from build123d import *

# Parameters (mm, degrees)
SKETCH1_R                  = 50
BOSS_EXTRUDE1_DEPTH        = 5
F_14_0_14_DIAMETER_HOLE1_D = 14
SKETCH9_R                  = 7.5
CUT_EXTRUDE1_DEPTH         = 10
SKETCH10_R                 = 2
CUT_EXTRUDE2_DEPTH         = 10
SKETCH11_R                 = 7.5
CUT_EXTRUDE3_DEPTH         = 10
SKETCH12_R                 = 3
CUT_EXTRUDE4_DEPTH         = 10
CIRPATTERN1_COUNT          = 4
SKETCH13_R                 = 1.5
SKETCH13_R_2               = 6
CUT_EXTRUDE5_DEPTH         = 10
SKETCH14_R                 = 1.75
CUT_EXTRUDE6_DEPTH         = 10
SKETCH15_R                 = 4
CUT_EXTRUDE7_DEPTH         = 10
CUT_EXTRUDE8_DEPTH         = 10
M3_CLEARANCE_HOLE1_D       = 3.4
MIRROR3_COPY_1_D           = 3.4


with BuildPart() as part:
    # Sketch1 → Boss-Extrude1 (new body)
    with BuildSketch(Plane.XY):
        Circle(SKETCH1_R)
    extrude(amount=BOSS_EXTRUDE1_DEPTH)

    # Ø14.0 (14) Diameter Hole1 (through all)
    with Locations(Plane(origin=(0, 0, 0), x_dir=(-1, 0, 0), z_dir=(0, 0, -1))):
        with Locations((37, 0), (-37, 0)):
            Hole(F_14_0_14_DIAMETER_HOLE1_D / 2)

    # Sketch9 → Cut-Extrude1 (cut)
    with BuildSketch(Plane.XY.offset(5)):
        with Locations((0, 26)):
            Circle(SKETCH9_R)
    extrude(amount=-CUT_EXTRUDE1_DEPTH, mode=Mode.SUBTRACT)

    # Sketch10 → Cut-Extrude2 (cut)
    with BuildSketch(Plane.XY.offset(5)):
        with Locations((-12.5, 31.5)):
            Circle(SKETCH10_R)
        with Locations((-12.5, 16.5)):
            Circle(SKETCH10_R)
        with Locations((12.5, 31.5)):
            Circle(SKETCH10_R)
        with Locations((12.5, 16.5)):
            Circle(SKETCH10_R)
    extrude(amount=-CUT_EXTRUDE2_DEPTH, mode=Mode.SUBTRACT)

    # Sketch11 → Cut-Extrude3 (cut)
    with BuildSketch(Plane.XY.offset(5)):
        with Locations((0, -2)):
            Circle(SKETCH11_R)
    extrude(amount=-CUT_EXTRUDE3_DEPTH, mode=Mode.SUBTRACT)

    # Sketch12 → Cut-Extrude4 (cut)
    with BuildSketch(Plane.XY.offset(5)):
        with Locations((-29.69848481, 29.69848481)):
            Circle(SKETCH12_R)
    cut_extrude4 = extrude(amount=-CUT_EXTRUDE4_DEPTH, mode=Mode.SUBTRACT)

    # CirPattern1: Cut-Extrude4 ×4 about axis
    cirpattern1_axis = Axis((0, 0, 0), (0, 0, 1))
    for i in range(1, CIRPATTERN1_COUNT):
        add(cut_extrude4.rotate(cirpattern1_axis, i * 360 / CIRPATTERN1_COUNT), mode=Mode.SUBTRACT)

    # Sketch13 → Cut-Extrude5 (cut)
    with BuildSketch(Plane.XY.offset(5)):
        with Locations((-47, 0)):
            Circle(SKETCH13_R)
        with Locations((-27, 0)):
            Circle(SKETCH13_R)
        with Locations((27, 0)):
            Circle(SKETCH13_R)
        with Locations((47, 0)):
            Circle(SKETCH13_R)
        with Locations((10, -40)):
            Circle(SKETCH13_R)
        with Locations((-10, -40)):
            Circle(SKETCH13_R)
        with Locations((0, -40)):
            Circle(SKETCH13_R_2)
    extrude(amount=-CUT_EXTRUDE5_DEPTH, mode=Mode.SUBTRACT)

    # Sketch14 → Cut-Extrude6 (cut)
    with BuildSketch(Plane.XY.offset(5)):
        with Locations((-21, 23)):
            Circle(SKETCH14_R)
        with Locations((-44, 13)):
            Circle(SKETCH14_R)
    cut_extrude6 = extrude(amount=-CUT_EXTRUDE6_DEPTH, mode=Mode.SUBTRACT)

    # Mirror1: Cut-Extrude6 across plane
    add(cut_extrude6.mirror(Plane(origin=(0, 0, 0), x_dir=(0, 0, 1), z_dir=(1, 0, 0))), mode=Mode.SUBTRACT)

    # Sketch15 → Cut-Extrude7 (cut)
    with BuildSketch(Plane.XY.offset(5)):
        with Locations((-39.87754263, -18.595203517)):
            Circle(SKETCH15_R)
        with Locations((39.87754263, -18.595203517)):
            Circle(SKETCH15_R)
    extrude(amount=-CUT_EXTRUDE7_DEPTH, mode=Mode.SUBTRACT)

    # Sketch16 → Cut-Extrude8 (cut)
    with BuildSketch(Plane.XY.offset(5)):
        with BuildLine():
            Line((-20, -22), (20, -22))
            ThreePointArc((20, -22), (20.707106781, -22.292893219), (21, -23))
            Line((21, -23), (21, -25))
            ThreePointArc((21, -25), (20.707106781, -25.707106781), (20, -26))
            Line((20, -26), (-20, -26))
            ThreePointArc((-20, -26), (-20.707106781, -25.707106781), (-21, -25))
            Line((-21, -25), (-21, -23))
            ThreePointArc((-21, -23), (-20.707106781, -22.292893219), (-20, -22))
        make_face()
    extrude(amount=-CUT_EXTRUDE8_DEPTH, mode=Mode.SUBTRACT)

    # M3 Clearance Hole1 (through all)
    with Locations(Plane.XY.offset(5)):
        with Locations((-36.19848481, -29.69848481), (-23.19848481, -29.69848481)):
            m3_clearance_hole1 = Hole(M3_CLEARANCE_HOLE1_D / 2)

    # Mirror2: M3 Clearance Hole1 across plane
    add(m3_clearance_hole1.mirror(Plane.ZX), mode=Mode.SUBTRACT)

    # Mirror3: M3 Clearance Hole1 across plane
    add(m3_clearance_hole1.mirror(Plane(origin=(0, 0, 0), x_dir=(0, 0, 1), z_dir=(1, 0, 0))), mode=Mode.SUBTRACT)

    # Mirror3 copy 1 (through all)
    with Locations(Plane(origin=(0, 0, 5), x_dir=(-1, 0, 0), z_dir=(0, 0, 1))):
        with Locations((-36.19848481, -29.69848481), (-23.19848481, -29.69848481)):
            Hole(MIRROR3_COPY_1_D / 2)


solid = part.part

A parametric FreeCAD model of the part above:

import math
import FreeCAD as App
import Part
import Sketcher
from FreeCAD import Vector
Q = App.Units.Quantity

doc = App.newDocument("Part")
params = doc.addObject("Spreadsheet::Sheet", "Params")
for row, (alias, value) in enumerate([
    ("sketch1_diameter", "100 mm"),
    ("pad1_length", "5 mm"),
    ("sketch2_diameter", "14 mm"),
    ("hole_diameter", "14 mm"),
    ("sketch3_diameter", "15 mm"),
    ("pocket1_length", "10 mm"),
    ("sketch4_diameter", "4 mm"),
    ("pocket2_length", "10 mm"),
    ("sketch5_diameter", "15 mm"),
    ("pocket3_length", "10 mm"),
    ("sketch6_diameter", "6 mm"),
    ("pocket4_length", "10 mm"),
    ("sketch7_diameter", "3 mm"),
    ("sketch7_diameter2", "12 mm"),
    ("pocket5_length", "10 mm"),
    ("sketch8_diameter", "3.5 mm"),
    ("pocket6_length", "10 mm"),
    ("sketch9_diameter", "8 mm"),
    ("pocket7_length", "10 mm"),
    ("sketch10_radius", "1 mm"),
    ("sketch10_width", "40 mm"),
    ("sketch10_height", "2 mm"),
    ("pocket8_length", "10 mm"),
    ("sketch11_diameter", "3.4 mm"),
    ("hole2_diameter", "3.4 mm"),
    ("sketch12_diameter", "3.4 mm"),
    ("hole3_diameter", "3.4 mm"),
], start=1):
    params.set(f"A{row}", alias)
    params.set(f"B{row}", "=" + value)
    params.setAlias(f"B{row}", alias)

body = doc.addObject("PartDesign::Body", "Body")

# Sketch on XY plane
sketch1 = doc.addObject("Sketcher::SketchObject", "Sketch")
body.addObject(sketch1)
sketch1.AttachmentSupport = (doc.XY_Plane, [""])
sketch1.MapMode = "FlatFace"
sketch1.addGeometry(Part.Circle(Vector(0, 0, 0), Vector(0, 0, 1), 50), False)
sketch1.addConstraint([
    Sketcher.Constraint("Coincident", 0, 3, -1, 1),
    Sketcher.Constraint("Diameter", 0, Q("100 mm")),
])
sketch1.setExpression("Constraints[1]", "Params.sketch1_diameter")
pad1 = doc.addObject("PartDesign::Pad", "Pad")
body.addObject(pad1)
pad1.Profile = sketch1
pad1.setExpression("Length", "Params.pad1_length")

# Sketch on XY plane
sketch2 = doc.addObject("Sketcher::SketchObject", "Sketch001")
body.addObject(sketch2)
sketch2.AttachmentSupport = (doc.XY_Plane, [""])
sketch2.MapMode = "FlatFace"
sketch2.addGeometry([
    Part.Circle(Vector(-37, 0, 0), Vector(0, 0, 1), 7),
    Part.Circle(Vector(37, 0, 0), Vector(0, 0, 1), 7),
], False)
sketch2.addConstraint([
    Sketcher.Constraint("Equal", 0, 1),
    Sketcher.Constraint("Symmetric", 0, 3, 1, 3, -1, 1),
    Sketcher.Constraint("PointOnObject", 0, 3, -1),
    Sketcher.Constraint("Diameter", 0, Q("14 mm")),
    Sketcher.Constraint("DistanceX", 0, 3, -1, 1, Q("37 mm")),
])
sketch2.setExpression("Constraints[3]", "Params.sketch2_diameter")
doc.recompute()
hole = doc.addObject("PartDesign::Hole", "Hole")
body.addObject(hole)
hole.Profile = sketch2
hole.ThreadType = "None"
hole.setExpression("Diameter", "Params.hole_diameter")
hole.DepthType = "ThroughAll"
hole.Reversed = True

# Sketch on XY plane
sketch3 = doc.addObject("Sketcher::SketchObject", "Sketch002")
body.addObject(sketch3)
sketch3.AttachmentSupport = (doc.XY_Plane, [""])
sketch3.MapMode = "FlatFace"
sketch3.AttachmentOffset = App.Placement(Vector(0, 0, 5), App.Rotation())
sketch3.addGeometry(Part.Circle(Vector(0, 26, 0), Vector(0, 0, 1), 8), False)
sketch3.addConstraint([
    Sketcher.Constraint("PointOnObject", 0, 3, -2),
    Sketcher.Constraint("Diameter", 0, Q("15 mm")),
    Sketcher.Constraint("DistanceY", -1, 1, 0, 3, Q("26 mm")),
])
sketch3.setExpression("Constraints[1]", "Params.sketch3_diameter")
pocket1 = doc.addObject("PartDesign::Pocket", "Pocket")
body.addObject(pocket1)
pocket1.Profile = sketch3
pocket1.setExpression("Length", "Params.pocket1_length")

# Sketch on XY plane
sketch4 = doc.addObject("Sketcher::SketchObject", "Sketch003")
body.addObject(sketch4)
sketch4.AttachmentSupport = (doc.XY_Plane, [""])
sketch4.MapMode = "FlatFace"
sketch4.AttachmentOffset = App.Placement(Vector(0, 0, 5), App.Rotation())
sketch4.addGeometry([
    Part.Circle(Vector(-12.5, 31.5, 0), Vector(0, 0, 1), 2),
    Part.Circle(Vector(-12.5, 16.5, 0), Vector(0, 0, 1), 2),
    Part.Circle(Vector(12.5, 31.5, 0), Vector(0, 0, 1), 2),
    Part.Circle(Vector(12.5, 16.5, 0), Vector(0, 0, 1), 2),
], False)
sketch4.addConstraint([
    Sketcher.Constraint("Equal", 0, 1),
    Sketcher.Constraint("Equal", 1, 2),
    Sketcher.Constraint("Equal", 2, 3),
    Sketcher.Constraint("Symmetric", 0, 3, 2, 3, -2),
    Sketcher.Constraint("Symmetric", 1, 3, 3, 3, -2),
    Sketcher.Constraint("Vertical", 0, 3, 1, 3),
    Sketcher.Constraint("Diameter", 0, Q("4 mm")),
    Sketcher.Constraint("DistanceY", 1, 3, 0, 3, Q("15 mm")),
    Sketcher.Constraint("DistanceX", 0, 3, 2, 3, Q("25 mm")),
    Sketcher.Constraint("DistanceY", -1, 1, 0, 3, Q("31.5 mm")),
])
sketch4.setExpression("Constraints[6]", "Params.sketch4_diameter")
pocket2 = doc.addObject("PartDesign::Pocket", "Pocket001")
body.addObject(pocket2)
pocket2.Profile = sketch4
pocket2.setExpression("Length", "Params.pocket2_length")

# Sketch on XY plane
sketch5 = doc.addObject("Sketcher::SketchObject", "Sketch004")
body.addObject(sketch5)
sketch5.AttachmentSupport = (doc.XY_Plane, [""])
sketch5.MapMode = "FlatFace"
sketch5.AttachmentOffset = App.Placement(Vector(0, 0, 5), App.Rotation())
sketch5.addGeometry(Part.Circle(Vector(0, -2, 0), Vector(0, 0, 1), 8), False)
sketch5.addConstraint([
    Sketcher.Constraint("PointOnObject", 0, 3, -2),
    Sketcher.Constraint("Diameter", 0, Q("15 mm")),
    Sketcher.Constraint("DistanceY", 0, 3, -1, 1, Q("2 mm")),
])
sketch5.setExpression("Constraints[1]", "Params.sketch5_diameter")
pocket3 = doc.addObject("PartDesign::Pocket", "Pocket002")
body.addObject(pocket3)
pocket3.Profile = sketch5
pocket3.setExpression("Length", "Params.pocket3_length")

# Sketch on XY plane
sketch6 = doc.addObject("Sketcher::SketchObject", "Sketch005")
body.addObject(sketch6)
sketch6.AttachmentSupport = (doc.XY_Plane, [""])
sketch6.MapMode = "FlatFace"
sketch6.AttachmentOffset = App.Placement(Vector(0, 0, 5), App.Rotation())
sketch6.addGeometry(Part.Circle(Vector(-29.7, 29.7, 0), Vector(0, 0, 1), 3), False)
sketch6.addConstraint([
    Sketcher.Constraint("Diameter", 0, Q("6 mm")),
    Sketcher.Constraint("DistanceX", 0, 3, -1, 1, Q("29.698485 mm")),
    Sketcher.Constraint("DistanceY", -1, 1, 0, 3, Q("29.698485 mm")),
])
sketch6.setExpression("Constraints[0]", "Params.sketch6_diameter")
pocket4 = doc.addObject("PartDesign::Pocket", "Pocket003")
body.addObject(pocket4)
pocket4.Profile = sketch6
pocket4.setExpression("Length", "Params.pocket4_length")
doc.recompute()

polarpattern = doc.addObject("PartDesign::PolarPattern", "PolarPattern")
body.addObject(polarpattern)
polarpattern.Originals = [pocket4]
polarpattern.Axis = (doc.Z_Axis, [""])
polarpattern.Angle = 360
polarpattern.Occurrences = 4
body.Tip = polarpattern

# Sketch on XY plane
sketch7 = doc.addObject("Sketcher::SketchObject", "Sketch006")
body.addObject(sketch7)
sketch7.AttachmentSupport = (doc.XY_Plane, [""])
sketch7.MapMode = "FlatFace"
sketch7.AttachmentOffset = App.Placement(Vector(0, 0, 5), App.Rotation())
sketch7.addGeometry([
    Part.Circle(Vector(-47, 0, 0), Vector(0, 0, 1), 1.5),  # 0
    Part.Circle(Vector(-27, 0, 0), Vector(0, 0, 1), 1.5),  # 1
    Part.Circle(Vector(27, 0, 0), Vector(0, 0, 1), 1.5),  # 2
    Part.Circle(Vector(47, 0, 0), Vector(0, 0, 1), 1.5),  # 3
    Part.Circle(Vector(10, -40, 0), Vector(0, 0, 1), 1.5),  # 4
    Part.Circle(Vector(-10, -40, 0), Vector(0, 0, 1), 1.5),  # 5
    Part.Circle(Vector(0, -40, 0), Vector(0, 0, 1), 6),  # 6
], False)
sketch7.addConstraint([
    Sketcher.Constraint("Equal", 0, 1),
    Sketcher.Constraint("Equal", 1, 2),
    Sketcher.Constraint("Equal", 2, 3),
    Sketcher.Constraint("Equal", 3, 4),
    Sketcher.Constraint("Equal", 4, 5),
    Sketcher.Constraint("Symmetric", 1, 3, 2, 3, -1, 1),
    Sketcher.Constraint("Symmetric", 0, 3, 3, 3, -1, 1),
    Sketcher.Constraint("Symmetric", 4, 3, 5, 3, -2),
    Sketcher.Constraint("PointOnObject", 0, 3, -1),
    Sketcher.Constraint("PointOnObject", 1, 3, -1),
    Sketcher.Constraint("PointOnObject", 6, 3, -2),
    Sketcher.Constraint("Horizontal", 5, 3, 6, 3),
    Sketcher.Constraint("Diameter", 0, Q("3 mm")),
    Sketcher.Constraint("Diameter", 6, Q("12 mm")),
    Sketcher.Constraint("DistanceX", 0, 3, -1, 1, Q("47 mm")),
    Sketcher.Constraint("DistanceX", 1, 3, -1, 1, Q("27 mm")),
    Sketcher.Constraint("DistanceX", -1, 1, 4, 3, Q("10 mm")),
    Sketcher.Constraint("DistanceY", 4, 3, -1, 1, Q("40 mm")),
])
sketch7.setExpression("Constraints[12]", "Params.sketch7_diameter")
sketch7.setExpression("Constraints[13]", "Params.sketch7_diameter2")
pocket5 = doc.addObject("PartDesign::Pocket", "Pocket004")
body.addObject(pocket5)
pocket5.Profile = sketch7
pocket5.setExpression("Length", "Params.pocket5_length")

# Sketch on XY plane
sketch8 = doc.addObject("Sketcher::SketchObject", "Sketch007")
body.addObject(sketch8)
sketch8.AttachmentSupport = (doc.XY_Plane, [""])
sketch8.MapMode = "FlatFace"
sketch8.AttachmentOffset = App.Placement(Vector(0, 0, 5), App.Rotation())
sketch8.addGeometry([
    Part.Circle(Vector(-21, 23, 0), Vector(0, 0, 1), 1.8),
    Part.Circle(Vector(-44, 13, 0), Vector(0, 0, 1), 1.8),
], False)
sketch8.addConstraint([
    Sketcher.Constraint("Equal", 0, 1),
    Sketcher.Constraint("Diameter", 0, Q("3.5 mm")),
    Sketcher.Constraint("DistanceX", 0, 3, -1, 1, Q("21 mm")),
    Sketcher.Constraint("DistanceY", -1, 1, 0, 3, Q("23 mm")),
    Sketcher.Constraint("DistanceX", 1, 3, -1, 1, Q("44 mm")),
    Sketcher.Constraint("DistanceY", -1, 1, 1, 3, Q("13 mm")),
])
sketch8.setExpression("Constraints[1]", "Params.sketch8_diameter")
pocket6 = doc.addObject("PartDesign::Pocket", "Pocket005")
body.addObject(pocket6)
pocket6.Profile = sketch8
pocket6.setExpression("Length", "Params.pocket6_length")
doc.recompute()

mirrored = doc.addObject("PartDesign::Mirrored", "Mirrored")
body.addObject(mirrored)
mirrored.Originals = [pocket6]
mirrored.MirrorPlane = (doc.YZ_Plane, [""])
body.Tip = mirrored

# Sketch on XY plane
sketch9 = doc.addObject("Sketcher::SketchObject", "Sketch008")
body.addObject(sketch9)
sketch9.AttachmentSupport = (doc.XY_Plane, [""])
sketch9.MapMode = "FlatFace"
sketch9.AttachmentOffset = App.Placement(Vector(0, 0, 5), App.Rotation())
sketch9.addGeometry([
    Part.Circle(Vector(-39.9, -18.6, 0), Vector(0, 0, 1), 4),
    Part.Circle(Vector(39.9, -18.6, 0), Vector(0, 0, 1), 4),
], False)
sketch9.addConstraint([
    Sketcher.Constraint("Equal", 0, 1),
    Sketcher.Constraint("Symmetric", 0, 3, 1, 3, -2),
    Sketcher.Constraint("Diameter", 0, Q("8 mm")),
    Sketcher.Constraint("DistanceX", 0, 3, -1, 1, Q("39.877543 mm")),
    Sketcher.Constraint("DistanceY", 0, 3, -1, 1, Q("18.595204 mm")),
])
sketch9.setExpression("Constraints[2]", "Params.sketch9_diameter")
pocket7 = doc.addObject("PartDesign::Pocket", "Pocket006")
body.addObject(pocket7)
pocket7.Profile = sketch9
pocket7.setExpression("Length", "Params.pocket7_length")

# Sketch on XY plane
sketch10 = doc.addObject("Sketcher::SketchObject", "Sketch009")
body.addObject(sketch10)
sketch10.AttachmentSupport = (doc.XY_Plane, [""])
sketch10.MapMode = "FlatFace"
sketch10.AttachmentOffset = App.Placement(Vector(0, 0, 5), App.Rotation())
sketch10.addGeometry([
    Part.LineSegment(Vector(20, -22, 0), Vector(-20, -22, 0)),  # 0
    Part.ArcOfCircle(Part.Circle(Vector(-20, -23, 0), Vector(0, 0, 1), 1), math.radians(90), math.radians(180)),  # 1
    Part.LineSegment(Vector(-21, -23, 0), Vector(-21, -25, 0)),  # 2
    Part.ArcOfCircle(Part.Circle(Vector(-20, -25, 0), Vector(0, 0, 1), 1), math.radians(-180), math.radians(-90)),  # 3
    Part.LineSegment(Vector(-20, -26, 0), Vector(20, -26, 0)),  # 4
    Part.ArcOfCircle(Part.Circle(Vector(20, -25, 0), Vector(0, 0, 1), 1), math.radians(-90), math.radians(0)),  # 5
    Part.LineSegment(Vector(21, -25, 0), Vector(21, -23, 0)),  # 6
    Part.ArcOfCircle(Part.Circle(Vector(20, -23, 0), Vector(0, 0, 1), 1), math.radians(0), math.radians(90)),  # 7
], False)
sketch10.addConstraint([
    Sketcher.Constraint("Tangent", 0, 2, 1, 1),
    Sketcher.Constraint("Tangent", 1, 2, 2, 1),
    Sketcher.Constraint("Tangent", 2, 2, 3, 1),
    Sketcher.Constraint("Tangent", 3, 2, 4, 1),
    Sketcher.Constraint("Tangent", 4, 2, 5, 1),
    Sketcher.Constraint("Tangent", 5, 2, 6, 1),
    Sketcher.Constraint("Tangent", 6, 2, 7, 1),
    Sketcher.Constraint("Tangent", 7, 2, 0, 1),
    Sketcher.Constraint("Horizontal", 0),
    Sketcher.Constraint("Vertical", 2),
    Sketcher.Constraint("Horizontal", 4),
    Sketcher.Constraint("Vertical", 6),
    Sketcher.Constraint("Equal", 1, 3),
    Sketcher.Constraint("Equal", 3, 5),
    Sketcher.Constraint("Equal", 5, 7),
    Sketcher.Constraint("Radius", 1, Q("1 mm")),
    Sketcher.Constraint("DistanceX", 0, 2, 0, 1, Q("40 mm")),
    Sketcher.Constraint("DistanceY", 2, 2, 2, 1, Q("2 mm")),
    Sketcher.Constraint("DistanceX", 1, 3, -1, 1, Q("20 mm")),
    Sketcher.Constraint("DistanceY", 1, 3, -1, 1, Q("23 mm")),
])
sketch10.setExpression("Constraints[15]", "Params.sketch10_radius")
sketch10.setExpression("Constraints[16]", "Params.sketch10_width")
sketch10.setExpression("Constraints[17]", "Params.sketch10_height")
pocket8 = doc.addObject("PartDesign::Pocket", "Pocket007")
body.addObject(pocket8)
pocket8.Profile = sketch10
pocket8.setExpression("Length", "Params.pocket8_length")

# Sketch on XY plane
sketch11 = doc.addObject("Sketcher::SketchObject", "Sketch010")
body.addObject(sketch11)
sketch11.AttachmentSupport = (doc.XY_Plane, [""])
sketch11.MapMode = "FlatFace"
sketch11.AttachmentOffset = App.Placement(Vector(0, 0, 5), App.Rotation())
sketch11.addGeometry([
    Part.Circle(Vector(-36.2, -29.7, 0), Vector(0, 0, 1), 1.7),
    Part.Circle(Vector(-23.2, -29.7, 0), Vector(0, 0, 1), 1.7),
], False)
sketch11.addConstraint([
    Sketcher.Constraint("Equal", 0, 1),
    Sketcher.Constraint("Horizontal", 0, 3, 1, 3),
    Sketcher.Constraint("Diameter", 0, Q("3.4 mm")),
    Sketcher.Constraint("DistanceX", 0, 3, 1, 3, Q("13 mm")),
    Sketcher.Constraint("DistanceX", 0, 3, -1, 1, Q("36.198485 mm")),
    Sketcher.Constraint("DistanceY", 0, 3, -1, 1, Q("29.698485 mm")),
])
sketch11.setExpression("Constraints[2]", "Params.sketch11_diameter")
doc.recompute()
hole2 = doc.addObject("PartDesign::Hole", "Hole001")
body.addObject(hole2)
hole2.Profile = sketch11
hole2.ThreadType = "None"
hole2.setExpression("Diameter", "Params.hole2_diameter")
hole2.DepthType = "ThroughAll"
doc.recompute()

mirrored2 = doc.addObject("PartDesign::Mirrored", "Mirrored001")
body.addObject(mirrored2)
mirrored2.Originals = [hole2]
mirrored2.MirrorPlane = (doc.XZ_Plane, [""])
body.Tip = mirrored2
doc.recompute()

mirrored3 = doc.addObject("PartDesign::Mirrored", "Mirrored002")
body.addObject(mirrored3)
mirrored3.Originals = [hole2]
mirrored3.MirrorPlane = (doc.YZ_Plane, [""])
body.Tip = mirrored3

# Sketch on XY plane
sketch12 = doc.addObject("Sketcher::SketchObject", "Sketch011")
body.addObject(sketch12)
sketch12.AttachmentSupport = (doc.XY_Plane, [""])
sketch12.MapMode = "FlatFace"
sketch12.AttachmentOffset = App.Placement(Vector(0, 0, 5), App.Rotation())
sketch12.addGeometry([
    Part.Circle(Vector(36.2, 29.7, 0), Vector(0, 0, 1), 1.7),
    Part.Circle(Vector(23.2, 29.7, 0), Vector(0, 0, 1), 1.7),
], False)
sketch12.addConstraint([
    Sketcher.Constraint("Equal", 0, 1),
    Sketcher.Constraint("Horizontal", 0, 3, 1, 3),
    Sketcher.Constraint("Diameter", 0, Q("3.4 mm")),
    Sketcher.Constraint("DistanceX", 1, 3, 0, 3, Q("13 mm")),
    Sketcher.Constraint("DistanceX", -1, 1, 0, 3, Q("36.198485 mm")),
    Sketcher.Constraint("DistanceY", -1, 1, 0, 3, Q("29.698485 mm")),
])
sketch12.setExpression("Constraints[2]", "Params.sketch12_diameter")
doc.recompute()
hole3 = doc.addObject("PartDesign::Hole", "Hole002")
body.addObject(hole3)
hole3.Profile = sketch12
hole3.ThreadType = "None"
hole3.setExpression("Diameter", "Params.hole3_diameter")
hole3.DepthType = "ThroughAll"

doc.recompute()
